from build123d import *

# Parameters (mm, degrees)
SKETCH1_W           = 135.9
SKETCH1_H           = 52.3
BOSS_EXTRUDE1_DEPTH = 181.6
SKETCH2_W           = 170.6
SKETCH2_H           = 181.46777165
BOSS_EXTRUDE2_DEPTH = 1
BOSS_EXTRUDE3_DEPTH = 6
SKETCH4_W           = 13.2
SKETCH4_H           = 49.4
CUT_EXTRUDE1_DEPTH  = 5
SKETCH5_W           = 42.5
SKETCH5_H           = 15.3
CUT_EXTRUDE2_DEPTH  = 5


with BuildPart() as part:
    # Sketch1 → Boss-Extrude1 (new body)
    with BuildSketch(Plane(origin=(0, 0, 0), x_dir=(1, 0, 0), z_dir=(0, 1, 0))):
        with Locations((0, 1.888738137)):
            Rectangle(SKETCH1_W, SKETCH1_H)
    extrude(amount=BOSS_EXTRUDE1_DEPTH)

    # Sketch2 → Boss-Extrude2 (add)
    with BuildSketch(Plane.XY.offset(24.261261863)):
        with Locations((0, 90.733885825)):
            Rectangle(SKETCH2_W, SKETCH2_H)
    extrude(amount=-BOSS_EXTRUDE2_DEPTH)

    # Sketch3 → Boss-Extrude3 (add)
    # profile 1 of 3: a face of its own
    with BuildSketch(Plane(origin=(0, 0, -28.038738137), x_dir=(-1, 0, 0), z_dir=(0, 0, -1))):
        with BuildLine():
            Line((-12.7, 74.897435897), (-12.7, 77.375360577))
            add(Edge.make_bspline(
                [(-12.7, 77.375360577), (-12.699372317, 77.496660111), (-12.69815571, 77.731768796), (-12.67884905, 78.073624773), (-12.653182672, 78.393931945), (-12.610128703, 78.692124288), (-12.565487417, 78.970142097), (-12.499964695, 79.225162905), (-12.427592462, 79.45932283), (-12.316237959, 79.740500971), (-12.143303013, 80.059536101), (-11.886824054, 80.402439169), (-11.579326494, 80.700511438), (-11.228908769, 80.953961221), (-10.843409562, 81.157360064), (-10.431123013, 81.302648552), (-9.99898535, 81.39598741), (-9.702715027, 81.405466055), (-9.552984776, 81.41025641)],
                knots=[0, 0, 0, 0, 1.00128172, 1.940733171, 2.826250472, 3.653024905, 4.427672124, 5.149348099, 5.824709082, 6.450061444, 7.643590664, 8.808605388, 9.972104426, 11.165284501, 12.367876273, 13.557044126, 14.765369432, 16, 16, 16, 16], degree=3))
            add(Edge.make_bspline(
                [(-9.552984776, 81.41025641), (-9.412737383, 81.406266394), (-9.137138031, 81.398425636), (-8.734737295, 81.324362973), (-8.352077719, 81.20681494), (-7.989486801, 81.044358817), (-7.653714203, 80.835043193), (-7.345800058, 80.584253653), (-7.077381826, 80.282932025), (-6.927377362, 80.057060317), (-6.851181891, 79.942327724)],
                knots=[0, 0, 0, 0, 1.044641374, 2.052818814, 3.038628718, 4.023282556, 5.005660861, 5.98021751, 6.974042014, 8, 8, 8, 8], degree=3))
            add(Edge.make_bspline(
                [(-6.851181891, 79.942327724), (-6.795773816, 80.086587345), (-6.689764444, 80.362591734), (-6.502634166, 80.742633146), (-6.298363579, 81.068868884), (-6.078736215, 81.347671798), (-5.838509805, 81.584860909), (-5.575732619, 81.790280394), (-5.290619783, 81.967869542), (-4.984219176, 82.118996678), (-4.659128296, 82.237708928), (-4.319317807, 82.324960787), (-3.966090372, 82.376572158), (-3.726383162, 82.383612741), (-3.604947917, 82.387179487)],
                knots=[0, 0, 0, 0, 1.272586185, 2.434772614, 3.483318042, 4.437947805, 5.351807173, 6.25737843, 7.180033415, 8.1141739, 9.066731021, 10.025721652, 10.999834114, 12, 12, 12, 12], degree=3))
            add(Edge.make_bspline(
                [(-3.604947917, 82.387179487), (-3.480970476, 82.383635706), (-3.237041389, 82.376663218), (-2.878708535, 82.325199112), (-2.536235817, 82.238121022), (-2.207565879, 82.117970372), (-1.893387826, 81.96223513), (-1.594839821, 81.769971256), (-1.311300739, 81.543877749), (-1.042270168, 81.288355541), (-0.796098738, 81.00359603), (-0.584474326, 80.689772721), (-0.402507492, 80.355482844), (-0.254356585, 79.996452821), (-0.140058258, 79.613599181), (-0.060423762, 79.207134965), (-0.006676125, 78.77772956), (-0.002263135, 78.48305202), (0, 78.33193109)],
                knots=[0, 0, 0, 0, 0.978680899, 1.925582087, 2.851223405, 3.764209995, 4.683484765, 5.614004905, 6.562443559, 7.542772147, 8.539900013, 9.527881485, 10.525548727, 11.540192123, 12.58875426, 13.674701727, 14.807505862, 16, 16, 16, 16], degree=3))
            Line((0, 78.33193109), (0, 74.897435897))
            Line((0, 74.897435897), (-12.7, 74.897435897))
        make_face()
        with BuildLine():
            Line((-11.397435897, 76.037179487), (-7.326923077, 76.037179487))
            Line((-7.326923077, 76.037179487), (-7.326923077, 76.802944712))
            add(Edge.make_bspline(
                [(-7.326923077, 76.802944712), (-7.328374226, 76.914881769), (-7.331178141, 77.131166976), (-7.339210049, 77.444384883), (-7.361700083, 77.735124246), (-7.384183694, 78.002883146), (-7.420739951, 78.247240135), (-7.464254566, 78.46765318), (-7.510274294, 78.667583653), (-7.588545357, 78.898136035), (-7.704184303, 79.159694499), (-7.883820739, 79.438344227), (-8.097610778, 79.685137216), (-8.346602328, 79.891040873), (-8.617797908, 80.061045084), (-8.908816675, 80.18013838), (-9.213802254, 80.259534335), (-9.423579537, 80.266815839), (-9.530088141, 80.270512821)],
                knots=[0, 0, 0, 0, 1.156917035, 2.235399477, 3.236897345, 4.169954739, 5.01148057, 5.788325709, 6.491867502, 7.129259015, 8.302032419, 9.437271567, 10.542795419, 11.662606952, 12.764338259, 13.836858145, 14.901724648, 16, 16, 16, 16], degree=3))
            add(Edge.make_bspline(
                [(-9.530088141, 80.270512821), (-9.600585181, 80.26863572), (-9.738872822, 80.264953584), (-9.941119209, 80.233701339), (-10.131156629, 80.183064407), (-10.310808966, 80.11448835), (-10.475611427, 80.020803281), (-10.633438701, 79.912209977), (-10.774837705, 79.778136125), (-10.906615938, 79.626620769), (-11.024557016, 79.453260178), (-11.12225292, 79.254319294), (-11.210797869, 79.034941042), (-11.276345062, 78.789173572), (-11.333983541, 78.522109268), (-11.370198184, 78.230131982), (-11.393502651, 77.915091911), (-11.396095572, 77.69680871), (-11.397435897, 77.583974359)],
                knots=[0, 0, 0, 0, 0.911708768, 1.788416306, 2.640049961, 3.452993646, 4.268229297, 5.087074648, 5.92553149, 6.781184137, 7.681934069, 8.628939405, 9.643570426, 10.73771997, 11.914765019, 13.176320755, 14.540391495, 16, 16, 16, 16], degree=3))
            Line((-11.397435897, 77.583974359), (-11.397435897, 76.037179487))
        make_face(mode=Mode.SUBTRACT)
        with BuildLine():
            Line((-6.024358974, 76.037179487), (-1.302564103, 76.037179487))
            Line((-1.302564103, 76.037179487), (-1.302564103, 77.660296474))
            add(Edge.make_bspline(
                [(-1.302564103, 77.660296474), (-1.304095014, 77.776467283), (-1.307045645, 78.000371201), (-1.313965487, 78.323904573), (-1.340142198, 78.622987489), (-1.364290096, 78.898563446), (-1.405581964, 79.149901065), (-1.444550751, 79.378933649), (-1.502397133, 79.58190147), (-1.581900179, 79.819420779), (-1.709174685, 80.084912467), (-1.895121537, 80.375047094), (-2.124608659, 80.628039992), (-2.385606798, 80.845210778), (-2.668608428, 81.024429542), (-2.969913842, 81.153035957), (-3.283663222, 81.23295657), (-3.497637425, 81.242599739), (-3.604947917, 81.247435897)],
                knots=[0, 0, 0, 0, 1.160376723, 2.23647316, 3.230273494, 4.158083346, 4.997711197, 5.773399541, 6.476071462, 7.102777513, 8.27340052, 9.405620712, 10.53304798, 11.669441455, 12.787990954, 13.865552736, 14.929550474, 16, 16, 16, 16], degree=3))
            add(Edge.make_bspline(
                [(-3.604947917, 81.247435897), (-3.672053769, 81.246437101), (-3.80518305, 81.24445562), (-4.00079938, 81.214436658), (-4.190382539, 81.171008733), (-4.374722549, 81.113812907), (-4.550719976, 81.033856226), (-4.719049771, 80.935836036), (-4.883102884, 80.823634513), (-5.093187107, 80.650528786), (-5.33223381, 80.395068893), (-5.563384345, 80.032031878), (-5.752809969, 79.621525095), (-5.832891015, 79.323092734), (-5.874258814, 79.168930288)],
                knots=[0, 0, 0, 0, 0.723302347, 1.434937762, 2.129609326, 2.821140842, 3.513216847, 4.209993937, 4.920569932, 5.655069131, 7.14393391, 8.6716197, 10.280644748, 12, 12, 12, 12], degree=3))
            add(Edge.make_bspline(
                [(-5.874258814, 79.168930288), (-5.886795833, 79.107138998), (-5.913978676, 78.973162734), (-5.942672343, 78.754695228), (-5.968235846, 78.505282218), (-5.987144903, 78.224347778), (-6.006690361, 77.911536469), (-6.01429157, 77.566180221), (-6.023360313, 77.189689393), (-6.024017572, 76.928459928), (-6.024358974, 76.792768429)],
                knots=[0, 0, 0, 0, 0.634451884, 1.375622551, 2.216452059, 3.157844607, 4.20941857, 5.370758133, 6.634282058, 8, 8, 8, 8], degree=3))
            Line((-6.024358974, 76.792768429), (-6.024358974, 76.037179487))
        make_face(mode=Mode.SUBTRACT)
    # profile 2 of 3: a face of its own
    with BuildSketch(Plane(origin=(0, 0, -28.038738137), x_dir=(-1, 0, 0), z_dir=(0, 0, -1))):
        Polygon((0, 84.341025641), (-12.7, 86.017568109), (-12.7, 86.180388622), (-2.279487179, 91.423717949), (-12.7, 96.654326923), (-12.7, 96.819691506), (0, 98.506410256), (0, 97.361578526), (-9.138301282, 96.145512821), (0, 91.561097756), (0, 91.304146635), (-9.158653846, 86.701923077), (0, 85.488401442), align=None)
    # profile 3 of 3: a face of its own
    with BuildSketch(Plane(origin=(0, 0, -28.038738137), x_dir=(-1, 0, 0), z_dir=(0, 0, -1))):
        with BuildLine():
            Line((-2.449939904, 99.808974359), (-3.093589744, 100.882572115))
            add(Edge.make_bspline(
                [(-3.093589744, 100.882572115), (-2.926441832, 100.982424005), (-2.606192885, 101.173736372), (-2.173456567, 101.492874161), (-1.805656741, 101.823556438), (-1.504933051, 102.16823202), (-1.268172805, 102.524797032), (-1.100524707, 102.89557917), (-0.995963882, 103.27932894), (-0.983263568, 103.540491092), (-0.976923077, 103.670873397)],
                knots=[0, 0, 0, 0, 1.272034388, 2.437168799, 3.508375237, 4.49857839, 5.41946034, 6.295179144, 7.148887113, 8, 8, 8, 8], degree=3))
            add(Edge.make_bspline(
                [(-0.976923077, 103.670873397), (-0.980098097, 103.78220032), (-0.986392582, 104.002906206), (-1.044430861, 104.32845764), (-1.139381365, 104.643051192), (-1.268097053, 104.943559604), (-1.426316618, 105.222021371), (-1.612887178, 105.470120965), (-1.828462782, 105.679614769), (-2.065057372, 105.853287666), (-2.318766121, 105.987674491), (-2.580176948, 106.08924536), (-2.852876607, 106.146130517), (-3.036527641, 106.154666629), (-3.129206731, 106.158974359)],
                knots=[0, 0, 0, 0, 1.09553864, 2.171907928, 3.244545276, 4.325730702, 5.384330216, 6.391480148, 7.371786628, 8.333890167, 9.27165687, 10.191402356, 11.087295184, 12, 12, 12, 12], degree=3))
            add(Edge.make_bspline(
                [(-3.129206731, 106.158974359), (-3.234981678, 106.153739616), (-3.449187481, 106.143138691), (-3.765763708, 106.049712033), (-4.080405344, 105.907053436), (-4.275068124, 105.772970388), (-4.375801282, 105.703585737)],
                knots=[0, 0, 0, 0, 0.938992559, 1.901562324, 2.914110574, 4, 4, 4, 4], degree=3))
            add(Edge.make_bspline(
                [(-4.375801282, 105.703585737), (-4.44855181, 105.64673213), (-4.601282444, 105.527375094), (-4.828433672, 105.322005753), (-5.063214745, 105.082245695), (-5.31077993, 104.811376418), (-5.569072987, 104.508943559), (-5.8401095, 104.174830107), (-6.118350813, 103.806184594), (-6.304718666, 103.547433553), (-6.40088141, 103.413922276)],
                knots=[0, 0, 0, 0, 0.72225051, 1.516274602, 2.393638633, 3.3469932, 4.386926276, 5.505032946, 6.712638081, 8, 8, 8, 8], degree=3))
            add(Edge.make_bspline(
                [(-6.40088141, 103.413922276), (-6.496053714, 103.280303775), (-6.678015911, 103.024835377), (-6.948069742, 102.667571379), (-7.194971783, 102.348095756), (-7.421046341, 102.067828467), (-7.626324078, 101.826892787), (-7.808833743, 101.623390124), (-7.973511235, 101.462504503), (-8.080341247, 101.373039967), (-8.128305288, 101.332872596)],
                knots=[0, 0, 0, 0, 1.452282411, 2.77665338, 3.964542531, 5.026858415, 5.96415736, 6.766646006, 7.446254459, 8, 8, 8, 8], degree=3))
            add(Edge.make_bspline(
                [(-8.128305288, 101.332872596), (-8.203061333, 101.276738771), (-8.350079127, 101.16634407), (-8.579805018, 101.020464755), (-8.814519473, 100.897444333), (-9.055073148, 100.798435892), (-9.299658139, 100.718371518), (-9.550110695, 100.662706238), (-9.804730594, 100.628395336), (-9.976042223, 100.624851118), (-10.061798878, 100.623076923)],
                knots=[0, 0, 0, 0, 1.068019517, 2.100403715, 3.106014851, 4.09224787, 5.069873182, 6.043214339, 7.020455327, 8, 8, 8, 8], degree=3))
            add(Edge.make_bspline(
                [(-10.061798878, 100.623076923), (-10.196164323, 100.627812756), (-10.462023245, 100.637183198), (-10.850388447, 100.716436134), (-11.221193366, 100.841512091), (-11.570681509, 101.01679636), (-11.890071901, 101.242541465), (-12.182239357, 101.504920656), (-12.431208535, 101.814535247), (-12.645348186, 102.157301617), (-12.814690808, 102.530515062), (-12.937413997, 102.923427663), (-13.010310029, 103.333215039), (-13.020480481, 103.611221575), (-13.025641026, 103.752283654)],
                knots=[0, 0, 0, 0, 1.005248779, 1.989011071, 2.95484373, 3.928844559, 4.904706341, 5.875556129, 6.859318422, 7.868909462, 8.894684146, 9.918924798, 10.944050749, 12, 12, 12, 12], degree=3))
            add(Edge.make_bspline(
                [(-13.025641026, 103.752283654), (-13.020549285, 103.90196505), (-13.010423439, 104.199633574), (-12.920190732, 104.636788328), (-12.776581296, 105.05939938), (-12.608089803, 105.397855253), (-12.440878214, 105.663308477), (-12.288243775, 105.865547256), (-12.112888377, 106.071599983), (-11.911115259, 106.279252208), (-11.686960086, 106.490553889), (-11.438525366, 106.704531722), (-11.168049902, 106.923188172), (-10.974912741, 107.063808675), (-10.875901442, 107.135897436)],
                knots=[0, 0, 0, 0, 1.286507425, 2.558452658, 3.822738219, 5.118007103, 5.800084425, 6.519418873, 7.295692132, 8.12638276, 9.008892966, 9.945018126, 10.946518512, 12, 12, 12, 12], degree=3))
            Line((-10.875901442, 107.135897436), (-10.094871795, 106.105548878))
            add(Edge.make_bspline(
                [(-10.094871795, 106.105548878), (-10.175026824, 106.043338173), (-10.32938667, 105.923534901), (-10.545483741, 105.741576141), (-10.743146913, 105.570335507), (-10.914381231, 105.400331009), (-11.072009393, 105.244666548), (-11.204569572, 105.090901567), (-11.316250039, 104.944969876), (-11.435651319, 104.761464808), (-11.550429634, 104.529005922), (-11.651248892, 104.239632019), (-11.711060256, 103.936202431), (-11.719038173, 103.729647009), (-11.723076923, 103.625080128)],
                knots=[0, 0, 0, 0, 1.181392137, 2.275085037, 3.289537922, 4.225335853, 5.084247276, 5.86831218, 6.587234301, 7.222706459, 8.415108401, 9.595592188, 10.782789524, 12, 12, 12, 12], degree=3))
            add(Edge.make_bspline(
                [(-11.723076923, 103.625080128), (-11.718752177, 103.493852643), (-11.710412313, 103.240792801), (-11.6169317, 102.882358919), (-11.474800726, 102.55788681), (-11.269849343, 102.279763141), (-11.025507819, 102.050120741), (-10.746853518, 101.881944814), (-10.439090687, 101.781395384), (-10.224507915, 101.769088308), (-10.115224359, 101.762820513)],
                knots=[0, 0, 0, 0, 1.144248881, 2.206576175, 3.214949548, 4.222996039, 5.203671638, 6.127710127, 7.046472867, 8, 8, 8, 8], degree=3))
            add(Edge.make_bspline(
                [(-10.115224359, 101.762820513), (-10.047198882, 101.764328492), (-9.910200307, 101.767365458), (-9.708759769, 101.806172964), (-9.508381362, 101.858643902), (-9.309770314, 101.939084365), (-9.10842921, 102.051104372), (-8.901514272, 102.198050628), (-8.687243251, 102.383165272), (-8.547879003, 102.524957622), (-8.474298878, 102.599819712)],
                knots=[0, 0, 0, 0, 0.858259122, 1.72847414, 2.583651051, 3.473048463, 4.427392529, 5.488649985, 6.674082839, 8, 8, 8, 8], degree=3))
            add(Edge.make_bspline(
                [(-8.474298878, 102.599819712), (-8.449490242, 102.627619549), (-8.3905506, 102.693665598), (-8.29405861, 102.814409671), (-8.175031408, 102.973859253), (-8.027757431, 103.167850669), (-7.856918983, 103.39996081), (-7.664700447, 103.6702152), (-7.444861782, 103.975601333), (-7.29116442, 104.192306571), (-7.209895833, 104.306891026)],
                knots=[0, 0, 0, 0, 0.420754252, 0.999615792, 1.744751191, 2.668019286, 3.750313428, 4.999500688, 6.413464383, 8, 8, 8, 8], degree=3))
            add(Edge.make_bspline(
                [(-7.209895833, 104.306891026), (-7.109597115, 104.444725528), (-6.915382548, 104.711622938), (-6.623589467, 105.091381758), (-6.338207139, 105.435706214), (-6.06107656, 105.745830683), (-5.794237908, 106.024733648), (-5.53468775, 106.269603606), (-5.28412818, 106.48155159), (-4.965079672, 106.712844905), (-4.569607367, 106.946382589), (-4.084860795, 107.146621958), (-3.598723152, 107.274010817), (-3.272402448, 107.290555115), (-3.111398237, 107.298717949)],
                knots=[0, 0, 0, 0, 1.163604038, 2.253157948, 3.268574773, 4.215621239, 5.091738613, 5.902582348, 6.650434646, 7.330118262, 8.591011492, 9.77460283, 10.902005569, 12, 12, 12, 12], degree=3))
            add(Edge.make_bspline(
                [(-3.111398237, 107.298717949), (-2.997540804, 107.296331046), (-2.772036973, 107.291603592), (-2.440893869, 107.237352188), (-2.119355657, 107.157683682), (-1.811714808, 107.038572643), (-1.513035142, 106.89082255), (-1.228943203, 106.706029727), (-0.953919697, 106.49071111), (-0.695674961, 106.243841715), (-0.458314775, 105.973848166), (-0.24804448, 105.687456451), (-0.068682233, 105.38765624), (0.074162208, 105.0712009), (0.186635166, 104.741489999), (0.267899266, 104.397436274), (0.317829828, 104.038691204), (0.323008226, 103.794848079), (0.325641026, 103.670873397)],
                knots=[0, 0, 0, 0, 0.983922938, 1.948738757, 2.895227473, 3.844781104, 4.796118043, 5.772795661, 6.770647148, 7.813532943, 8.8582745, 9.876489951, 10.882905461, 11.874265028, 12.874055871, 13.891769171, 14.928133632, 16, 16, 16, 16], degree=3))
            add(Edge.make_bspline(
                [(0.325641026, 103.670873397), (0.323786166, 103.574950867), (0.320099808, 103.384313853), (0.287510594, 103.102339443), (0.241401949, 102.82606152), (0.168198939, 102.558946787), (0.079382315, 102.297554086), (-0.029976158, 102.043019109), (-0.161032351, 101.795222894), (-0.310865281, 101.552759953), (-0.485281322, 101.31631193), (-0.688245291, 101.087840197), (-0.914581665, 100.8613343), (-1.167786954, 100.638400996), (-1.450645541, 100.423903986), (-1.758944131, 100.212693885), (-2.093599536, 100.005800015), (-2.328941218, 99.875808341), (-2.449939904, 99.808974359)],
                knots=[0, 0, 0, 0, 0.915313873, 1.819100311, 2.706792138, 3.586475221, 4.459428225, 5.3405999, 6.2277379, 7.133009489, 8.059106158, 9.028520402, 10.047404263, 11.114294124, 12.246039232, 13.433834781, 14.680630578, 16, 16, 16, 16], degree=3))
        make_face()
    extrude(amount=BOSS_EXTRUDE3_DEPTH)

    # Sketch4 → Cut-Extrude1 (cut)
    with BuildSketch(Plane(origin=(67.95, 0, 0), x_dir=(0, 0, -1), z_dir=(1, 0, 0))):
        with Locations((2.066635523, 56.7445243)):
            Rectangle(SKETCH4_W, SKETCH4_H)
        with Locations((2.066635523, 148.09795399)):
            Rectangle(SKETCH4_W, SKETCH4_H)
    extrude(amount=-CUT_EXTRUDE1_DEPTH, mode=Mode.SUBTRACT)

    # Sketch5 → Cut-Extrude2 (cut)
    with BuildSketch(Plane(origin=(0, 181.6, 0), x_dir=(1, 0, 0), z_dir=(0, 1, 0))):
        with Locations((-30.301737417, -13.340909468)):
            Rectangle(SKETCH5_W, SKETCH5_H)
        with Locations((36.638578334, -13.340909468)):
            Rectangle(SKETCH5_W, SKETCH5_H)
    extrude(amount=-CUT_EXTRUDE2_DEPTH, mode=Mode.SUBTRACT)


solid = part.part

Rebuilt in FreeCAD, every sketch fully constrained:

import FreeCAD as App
import Part
import Sketcher
from FreeCAD import Vector
Q = App.Units.Quantity

doc = App.newDocument("Part")
body = doc.addObject("PartDesign::Body", "Body")

# Sketch on XZ plane
sketch1 = body.newObject("Sketcher::SketchObject", "Sketch")
sketch1.AttachmentSupport = (doc.getObject("XZ_Plane"), [""])
sketch1.MapMode = "FlatFace"
sketch1.addGeometry(Part.LineSegment(Vector(-68, -28, 0), Vector(-68, 24, 0)), False)
sketch1.addGeometry(Part.LineSegment(Vector(-68, 24, 0), Vector(68, 24, 0)), False)
sketch1.addGeometry(Part.LineSegment(Vector(68, 24, 0), Vector(68, -28, 0)), False)
sketch1.addGeometry(Part.LineSegment(Vector(68, -28, 0), Vector(-68, -28, 0)), False)
sketch1.addConstraint(Sketcher.Constraint("Coincident", 0, 2, 1, 1))
sketch1.addConstraint(Sketcher.Constraint("Coincident", 1, 2, 2, 1))
sketch1.addConstraint(Sketcher.Constraint("Coincident", 2, 2, 3, 1))
sketch1.addConstraint(Sketcher.Constraint("Coincident", 3, 2, 0, 1))
sketch1.addConstraint(Sketcher.Constraint("Vertical", 0))
sketch1.addConstraint(Sketcher.Constraint("Horizontal", 1))
sketch1.addConstraint(Sketcher.Constraint("Vertical", 2))
sketch1.addConstraint(Sketcher.Constraint("Horizontal", 3))
sketch1.addConstraint(Sketcher.Constraint("DistanceX", 1, 1, 1, 2, Q("135.9 mm")))
sketch1.addConstraint(Sketcher.Constraint("DistanceY", 0, 1, 0, 2, Q("52.3 mm")))
sketch1.addConstraint(Sketcher.Constraint("DistanceX", 0, 2, -1, 1, Q("67.95 mm")))
sketch1.addConstraint(Sketcher.Constraint("DistanceY", -1, 1, 0, 2, Q("24.261262 mm")))
pad1 = body.newObject("PartDesign::Pad", "Pad")
pad1.Profile = sketch1
pad1.Length = 181.6
pad1.Reversed = True

# Sketch on XY plane
sketch2 = body.newObject("Sketcher::SketchObject", "Sketch001")
sketch2.AttachmentSupport = (doc.getObject("XY_Plane"), [""])
sketch2.MapMode = "FlatFace"
sketch2.AttachmentOffset = App.Placement(Vector(0, 0, 24.261262), App.Rotation())
sketch2.addGeometry(Part.LineSegment(Vector(-85, 181, 0), Vector(-85, 0, 0)), False)
sketch2.addGeometry(Part.LineSegment(Vector(-85, 0, 0), Vector(85, 0, 0)), False)
sketch2.addGeometry(Part.LineSegment(Vector(85, 0, 0), Vector(85, 181, 0)), False)
sketch2.addGeometry(Part.LineSegment(Vector(85, 181, 0), Vector(-85, 181, 0)), False)
sketch2.addConstraint(Sketcher.Constraint("Coincident", 0, 2, 1, 1))
sketch2.addConstraint(Sketcher.Constraint("Coincident", 1, 2, 2, 1))
sketch2.addConstraint(Sketcher.Constraint("Coincident", 2, 2, 3, 1))
sketch2.addConstraint(Sketcher.Constraint("Coincident", 3, 2, 0, 1))
sketch2.addConstraint(Sketcher.Constraint("Vertical", 0))
sketch2.addConstraint(Sketcher.Constraint("Horizontal", 1))
sketch2.addConstraint(Sketcher.Constraint("Vertical", 2))
sketch2.addConstraint(Sketcher.Constraint("Horizontal", 3))
sketch2.addConstraint(Sketcher.Constraint("Symmetric", 0, 2, 1, 2, -1, 1))
sketch2.addConstraint(Sketcher.Constraint("DistanceX", 1, 1, 1, 2, Q("170.6 mm")))
sketch2.addConstraint(Sketcher.Constraint("DistanceY", 0, 2, 0, 1, Q("181.467772 mm")))
pad2 = body.newObject("PartDesign::Pad", "Pad001")
pad2.Profile = sketch2
pad2.Length = 1
pad2.Reversed = True

# Sketch on XY plane
sketch3 = body.newObject("Sketcher::SketchObject", "Sketch002")
sketch3.AttachmentSupport = (doc.getObject("XY_Plane"), [""])
sketch3.MapMode = "FlatFace"
sketch3.AttachmentOffset = App.Placement(Vector(0, 0, -28.038738), App.Rotation())
sketch3.addGeometry(Part.LineSegment(Vector(12.7, 77.375361, 0), Vector(12.7, 74.897436, 0)), False)
sketch3.addGeometry(Part.LineSegment(Vector(12.7, 74.897436, 0), Vector(0, 74.897436, 0)), False)
sketch3.addGeometry(Part.LineSegment(Vector(0, 74.897436, 0), Vector(0, 78.331931, 0)), False)
sketch3.addGeometry(Part.BSplineCurve([Vector(3.604948, 82.387179, 0), Vector(3.48097, 82.383636, 0), Vector(3.237041, 82.376663, 0), Vector(2.878709, 82.325199, 0), Vector(2.536236, 82.238121, 0), Vector(2.207566, 82.11797, 0), Vector(1.893388, 81.962235, 0), Vector(1.59484, 81.769971, 0), Vector(1.311301, 81.543878, 0), Vector(1.04227, 81.288356, 0), Vector(0.796099, 81.003596, 0), Vector(0.584474, 80.689773, 0), Vector(0.402507, 80.355483, 0), Vector(0.254357, 79.996453, 0), Vector(0.140058, 79.613599, 0), Vector(0.060424, 79.207135, 0), Vector(0.006676, 78.77773, 0), Vector(0.002263, 78.483052, 0), Vector(0, 78.331931, 0)], [4, 1, 1, 1, 1, 1, 1, 1, 1, 1, 1, 1, 1, 1, 1, 1, 4], [0, 0.978680899, 1.925582087, 2.851223405, 3.764209995, 4.683484765, 5.614004905, 6.562443559, 7.542772147, 8.539900013, 9.527881485, 10.525548727, 11.540192123, 12.58875426, 13.674701727, 14.807505862, 16], False, 3, [1, 1, 1, 1, 1, 1, 1, 1, 1, 1, 1, 1, 1, 1, 1, 1, 1, 1, 1], False), False)
sketch3.addGeometry(Part.BSplineCurve([Vector(6.851182, 79.942328, 0), Vector(6.795774, 80.086587, 0), Vector(6.689764, 80.362592, 0), Vector(6.502634, 80.742633, 0), Vector(6.298364, 81.068869, 0), Vector(6.078736, 81.347672, 0), Vector(5.83851, 81.584861, 0), Vector(5.575733, 81.79028, 0), Vector(5.29062, 81.96787, 0), Vector(4.984219, 82.118997, 0), Vector(4.659128, 82.237709, 0), Vector(4.319318, 82.324961, 0), Vector(3.96609, 82.376572, 0), Vector(3.726383, 82.383613, 0), Vector(3.604948, 82.387179, 0)], [4, 1, 1, 1, 1, 1, 1, 1, 1, 1, 1, 1, 4], [0, 1.272586185, 2.434772614, 3.483318042, 4.437947805, 5.351807173, 6.25737843, 7.180033415, 8.1141739, 9.066731021, 10.025721652, 10.999834114, 12], False, 3, [1, 1, 1, 1, 1, 1, 1, 1, 1, 1, 1, 1, 1, 1, 1], False), False)
sketch3.addGeometry(Part.BSplineCurve([Vector(9.552985, 81.410256, 0), Vector(9.412737, 81.406266, 0), Vector(9.137138, 81.398426, 0), Vector(8.734737, 81.324363, 0), Vector(8.352078, 81.206815, 0), Vector(7.989487, 81.044359, 0), Vector(7.653714, 80.835043, 0), Vector(7.3458, 80.584254, 0), Vector(7.077382, 80.282932, 0), Vector(6.927377, 80.05706, 0), Vector(6.851182, 79.942328, 0)], [4, 1, 1, 1, 1, 1, 1, 1, 4], [0, 1.044641374, 2.052818814, 3.038628718, 4.023282556, 5.005660861, 5.98021751, 6.974042014, 8], False, 3, [1, 1, 1, 1, 1, 1, 1, 1, 1, 1, 1], False), False)
sketch3.addGeometry(Part.BSplineCurve([Vector(12.7, 77.375361, 0), Vector(12.699372, 77.49666, 0), Vector(12.698156, 77.731769, 0), Vector(12.678849, 78.073625, 0), Vector(12.653183, 78.393932, 0), Vector(12.610129, 78.692124, 0), Vector(12.565487, 78.970142, 0), Vector(12.499965, 79.225163, 0), Vector(12.427592, 79.459323, 0), Vector(12.316238, 79.740501, 0), Vector(12.143303, 80.059536, 0), Vector(11.886824, 80.402439, 0), Vector(11.579326, 80.700511, 0), Vector(11.228909, 80.953961, 0), Vector(10.84341, 81.15736, 0), Vector(10.431123, 81.302649, 0), Vector(9.998985, 81.395987, 0), Vector(9.702715, 81.405466, 0), Vector(9.552985, 81.410256, 0)], [4, 1, 1, 1, 1, 1, 1, 1, 1, 1, 1, 1, 1, 1, 1, 1, 4], [0, 1.00128172, 1.940733171, 2.826250472, 3.653024905, 4.427672124, 5.149348099, 5.824709082, 6.450061444, 7.643590664, 8.808605388, 9.972104426, 11.165284501, 12.367876273, 13.557044126, 14.765369432, 16], False, 3, [1, 1, 1, 1, 1, 1, 1, 1, 1, 1, 1, 1, 1, 1, 1, 1, 1, 1, 1], False), False)
sketch3.addGeometry(Part.LineSegment(Vector(11.397436, 76.037179, 0), Vector(11.397436, 77.583974, 0)), False)
sketch3.addGeometry(Part.BSplineCurve([Vector(9.530088, 80.270513, 0), Vector(9.600585, 80.268636, 0), Vector(9.738873, 80.264954, 0), Vector(9.941119, 80.233701, 0), Vector(10.131157, 80.183064, 0), Vector(10.310809, 80.114488, 0), Vector(10.475611, 80.020803, 0), Vector(10.633439, 79.91221, 0), Vector(10.774838, 79.778136, 0), Vector(10.906616, 79.626621, 0), Vector(11.024557, 79.45326, 0), Vector(11.122253, 79.254319, 0), Vector(11.210798, 79.034941, 0), Vector(11.276345, 78.789174, 0), Vector(11.333984, 78.522109, 0), Vector(11.370198, 78.230132, 0), Vector(11.393503, 77.915092, 0), Vector(11.396096, 77.696809, 0), Vector(11.397436, 77.583974, 0)], [4, 1, 1, 1, 1, 1, 1, 1, 1, 1, 1, 1, 1, 1, 1, 1, 4], [0, 0.911708768, 1.788416306, 2.640049961, 3.452993646, 4.268229297, 5.087074648, 5.92553149, 6.781184137, 7.681934069, 8.628939405, 9.643570426, 10.73771997, 11.914765019, 13.176320755, 14.540391495, 16], False, 3, [1, 1, 1, 1, 1, 1, 1, 1, 1, 1, 1, 1, 1, 1, 1, 1, 1, 1, 1], False), False)
sketch3.addGeometry(Part.BSplineCurve([Vector(7.326923, 76.802945, 0), Vector(7.328374, 76.914882, 0), Vector(7.331178, 77.131167, 0), Vector(7.33921, 77.444385, 0), Vector(7.3617, 77.735124, 0), Vector(7.384184, 78.002883, 0), Vector(7.42074, 78.24724, 0), Vector(7.464255, 78.467653, 0), Vector(7.510274, 78.667584, 0), Vector(7.588545, 78.898136, 0), Vector(7.704184, 79.159694, 0), Vector(7.883821, 79.438344, 0), Vector(8.097611, 79.685137, 0), Vector(8.346602, 79.891041, 0), Vector(8.617798, 80.061045, 0), Vector(8.908817, 80.180138, 0), Vector(9.213802, 80.259534, 0), Vector(9.42358, 80.266816, 0), Vector(9.530088, 80.270513, 0)], [4, 1, 1, 1, 1, 1, 1, 1, 1, 1, 1, 1, 1, 1, 1, 1, 4], [0, 1.156917035, 2.235399477, 3.236897345, 4.169954739, 5.01148057, 5.788325709, 6.491867502, 7.129259015, 8.302032419, 9.437271567, 10.542795419, 11.662606952, 12.764338259, 13.836858145, 14.901724648, 16], False, 3, [1, 1, 1, 1, 1, 1, 1, 1, 1, 1, 1, 1, 1, 1, 1, 1, 1, 1, 1], False), False)
sketch3.addGeometry(Part.LineSegment(Vector(7.326923, 76.802945, 0), Vector(7.326923, 76.037179, 0)), False)
sketch3.addGeometry(Part.LineSegment(Vector(7.326923, 76.037179, 0), Vector(11.397436, 76.037179, 0)), False)
sketch3.addGeometry(Part.LineSegment(Vector(6.024359, 76.037179, 0), Vector(6.024359, 76.792768, 0)), False)
sketch3.addGeometry(Part.BSplineCurve([Vector(5.874259, 79.16893, 0), Vector(5.886796, 79.107139, 0), Vector(5.913979, 78.973163, 0), Vector(5.942672, 78.754695, 0), Vector(5.968236, 78.505282, 0), Vector(5.987145, 78.224348, 0), Vector(6.00669, 77.911536, 0), Vector(6.014292, 77.56618, 0), Vector(6.02336, 77.189689, 0), Vector(6.024018, 76.92846, 0), Vector(6.024359, 76.792768, 0)], [4, 1, 1, 1, 1, 1, 1, 1, 4], [0, 0.634451884, 1.375622551, 2.216452059, 3.157844607, 4.20941857, 5.370758133, 6.634282058, 8], False, 3, [1, 1, 1, 1, 1, 1, 1, 1, 1, 1, 1], False), False)
sketch3.addGeometry(Part.BSplineCurve([Vector(3.604948, 81.247436, 0), Vector(3.672054, 81.246437, 0), Vector(3.805183, 81.244456, 0), Vector(4.000799, 81.214437, 0), Vector(4.190383, 81.171009, 0), Vector(4.374723, 81.113813, 0), Vector(4.55072, 81.033856, 0), Vector(4.71905, 80.935836, 0), Vector(4.883103, 80.823635, 0), Vector(5.093187, 80.650529, 0), Vector(5.332234, 80.395069, 0), Vector(5.563384, 80.032032, 0), Vector(5.75281, 79.621525, 0), Vector(5.832891, 79.323093, 0), Vector(5.874259, 79.16893, 0)], [4, 1, 1, 1, 1, 1, 1, 1, 1, 1, 1, 1, 4], [0, 0.723302347, 1.434937762, 2.129609326, 2.821140842, 3.513216847, 4.209993937, 4.920569932, 5.655069131, 7.14393391, 8.6716197, 10.280644748, 12], False, 3, [1, 1, 1, 1, 1, 1, 1, 1, 1, 1, 1, 1, 1, 1, 1], False), False)
sketch3.addGeometry(Part.BSplineCurve([Vector(1.302564, 77.660296, 0), Vector(1.304095, 77.776467, 0), Vector(1.307046, 78.000371, 0), Vector(1.313965, 78.323905, 0), Vector(1.340142, 78.622987, 0), Vector(1.36429, 78.898563, 0), Vector(1.405582, 79.149901, 0), Vector(1.444551, 79.378934, 0), Vector(1.502397, 79.581901, 0), Vector(1.5819, 79.819421, 0), Vector(1.709175, 80.084912, 0), Vector(1.895122, 80.375047, 0), Vector(2.124609, 80.62804, 0), Vector(2.385607, 80.845211, 0), Vector(2.668608, 81.02443, 0), Vector(2.969914, 81.153036, 0), Vector(3.283663, 81.232957, 0), Vector(3.497637, 81.2426, 0), Vector(3.604948, 81.247436, 0)], [4, 1, 1, 1, 1, 1, 1, 1, 1, 1, 1, 1, 1, 1, 1, 1, 4], [0, 1.160376723, 2.23647316, 3.230273494, 4.158083346, 4.997711197, 5.773399541, 6.476071462, 7.102777513, 8.27340052, 9.405620712, 10.53304798, 11.669441455, 12.787990954, 13.865552736, 14.929550474, 16], False, 3, [1, 1, 1, 1, 1, 1, 1, 1, 1, 1, 1, 1, 1, 1, 1, 1, 1, 1, 1], False), False)
sketch3.addGeometry(Part.LineSegment(Vector(1.302564, 77.660296, 0), Vector(1.302564, 76.037179, 0)), False)
sketch3.addGeometry(Part.LineSegment(Vector(1.302564, 76.037179, 0), Vector(6.024359, 76.037179, 0)), False)
sketch3.addGeometry(Part.LineSegment(Vector(12.7, 86.017568, 0), Vector(0, 84.341026, 0)), False)
sketch3.addGeometry(Part.LineSegment(Vector(0, 84.341026, 0), Vector(0, 85.488401, 0)), False)
sketch3.addGeometry(Part.LineSegment(Vector(0, 85.488401, 0), Vector(9.158654, 86.701923, 0)), False)
sketch3.addGeometry(Part.LineSegment(Vector(9.158654, 86.701923, 0), Vector(0, 91.304147, 0)), False)
sketch3.addGeometry(Part.LineSegment(Vector(0, 91.304147, 0), Vector(0, 91.561098, 0)), False)
sketch3.addGeometry(Part.LineSegment(Vector(0, 91.561098, 0), Vector(9.138301, 96.145513, 0)), False)
sketch3.addGeometry(Part.LineSegment(Vector(9.138301, 96.145513, 0), Vector(0, 97.361579, 0)), False)
sketch3.addGeometry(Part.LineSegment(Vector(0, 97.361579, 0), Vector(0, 98.50641, 0)), False)
sketch3.addGeometry(Part.LineSegment(Vector(0, 98.50641, 0), Vector(12.7, 96.819692, 0)), False)
sketch3.addGeometry(Part.LineSegment(Vector(12.7, 96.819692, 0), Vector(12.7, 96.654327, 0)), False)
sketch3.addGeometry(Part.LineSegment(Vector(12.7, 96.654327, 0), Vector(2.279487, 91.423718, 0)), False)
sketch3.addGeometry(Part.LineSegment(Vector(2.279487, 91.423718, 0), Vector(12.7, 86.180389, 0)), False)
sketch3.addGeometry(Part.LineSegment(Vector(12.7, 86.180389, 0), Vector(12.7, 86.017568, 0)), False)
sketch3.addGeometry(Part.LineSegment(Vector(3.09359, 100.882572, 0), Vector(2.44994, 99.808974, 0)), False)
sketch3.addGeometry(Part.BSplineCurve([Vector(-0.325641, 103.670873, 0), Vector(-0.323786, 103.574951, 0), Vector(-0.3201, 103.384314, 0), Vector(-0.287511, 103.102339, 0), Vector(-0.241402, 102.826062, 0), Vector(-0.168199, 102.558947, 0), Vector(-0.079382, 102.297554, 0), Vector(0.029976, 102.043019, 0), Vector(0.161032, 101.795223, 0), Vector(0.310865, 101.55276, 0), Vector(0.485281, 101.316312, 0), Vector(0.688245, 101.08784, 0), Vector(0.914582, 100.861334, 0), Vector(1.167787, 100.638401, 0), Vector(1.450646, 100.423904, 0), Vector(1.758944, 100.212694, 0), Vector(2.0936, 100.0058, 0), Vector(2.328941, 99.875808, 0), Vector(2.44994, 99.808974, 0)], [4, 1, 1, 1, 1, 1, 1, 1, 1, 1, 1, 1, 1, 1, 1, 1, 4], [0, 0.915313873, 1.819100311, 2.706792138, 3.586475221, 4.459428225, 5.3405999, 6.2277379, 7.133009489, 8.059106158, 9.028520402, 10.047404263, 11.114294124, 12.246039232, 13.433834781, 14.680630578, 16], False, 3, [1, 1, 1, 1, 1, 1, 1, 1, 1, 1, 1, 1, 1, 1, 1, 1, 1, 1, 1], False), False)
sketch3.addGeometry(Part.BSplineCurve([Vector(3.111398, 107.298718, 0), Vector(2.997541, 107.296331, 0), Vector(2.772037, 107.291604, 0), Vector(2.440894, 107.237352, 0), Vector(2.119356, 107.157684, 0), Vector(1.811715, 107.038573, 0), Vector(1.513035, 106.890823, 0), Vector(1.228943, 106.70603, 0), Vector(0.95392, 106.490711, 0), Vector(0.695675, 106.243842, 0), Vector(0.458315, 105.973848, 0), Vector(0.248044, 105.687456, 0), Vector(0.068682, 105.387656, 0), Vector(-0.074162, 105.071201, 0), Vector(-0.186635, 104.74149, 0), Vector(-0.267899, 104.397436, 0), Vector(-0.31783, 104.038691, 0), Vector(-0.323008, 103.794848, 0), Vector(-0.325641, 103.670873, 0)], [4, 1, 1, 1, 1, 1, 1, 1, 1, 1, 1, 1, 1, 1, 1, 1, 4], [0, 0.983922938, 1.948738757, 2.895227473, 3.844781104, 4.796118043, 5.772795661, 6.770647148, 7.813532943, 8.8582745, 9.876489951, 10.882905461, 11.874265028, 12.874055871, 13.891769171, 14.928133632, 16], False, 3, [1, 1, 1, 1, 1, 1, 1, 1, 1, 1, 1, 1, 1, 1, 1, 1, 1, 1, 1], False), False)
sketch3.addGeometry(Part.BSplineCurve([Vector(7.209896, 104.306891, 0), Vector(7.109597, 104.444726, 0), Vector(6.915383, 104.711623, 0), Vector(6.623589, 105.091382, 0), Vector(6.338207, 105.435706, 0), Vector(6.061077, 105.745831, 0), Vector(5.794238, 106.024734, 0), Vector(5.534688, 106.269604, 0), Vector(5.284128, 106.481552, 0), Vector(4.96508, 106.712845, 0), Vector(4.569607, 106.946383, 0), Vector(4.084861, 107.146622, 0), Vector(3.598723, 107.274011, 0), Vector(3.272402, 107.290555, 0), Vector(3.111398, 107.298718, 0)], [4, 1, 1, 1, 1, 1, 1, 1, 1, 1, 1, 1, 4], [0, 1.163604038, 2.253157948, 3.268574773, 4.215621239, 5.091738613, 5.902582348, 6.650434646, 7.330118262, 8.591011492, 9.77460283, 10.902005569, 12], False, 3, [1, 1, 1, 1, 1, 1, 1, 1, 1, 1, 1, 1, 1, 1, 1], False), False)
sketch3.addGeometry(Part.BSplineCurve([Vector(8.474299, 102.59982, 0), Vector(8.44949, 102.62762, 0), Vector(8.390551, 102.693666, 0), Vector(8.294059, 102.81441, 0), Vector(8.175031, 102.973859, 0), Vector(8.027757, 103.167851, 0), Vector(7.856919, 103.399961, 0), Vector(7.6647, 103.670215, 0), Vector(7.444862, 103.975601, 0), Vector(7.291164, 104.192307, 0), Vector(7.209896, 104.306891, 0)], [4, 1, 1, 1, 1, 1, 1, 1, 4], [0, 0.420754252, 0.999615792, 1.744751191, 2.668019286, 3.750313428, 4.999500688, 6.413464383, 8], False, 3, [1, 1, 1, 1, 1, 1, 1, 1, 1, 1, 1], False), False)
sketch3.addGeometry(Part.BSplineCurve([Vector(10.115224, 101.762821, 0), Vector(10.047199, 101.764328, 0), Vector(9.9102, 101.767365, 0), Vector(9.70876, 101.806173, 0), Vector(9.508381, 101.858644, 0), Vector(9.30977, 101.939084, 0), Vector(9.108429, 102.051104, 0), Vector(8.901514, 102.198051, 0), Vector(8.687243, 102.383165, 0), Vector(8.547879, 102.524958, 0), Vector(8.474299, 102.59982, 0)], [4, 1, 1, 1, 1, 1, 1, 1, 4], [0, 0.858259122, 1.72847414, 2.583651051, 3.473048463, 4.427392529, 5.488649985, 6.674082839, 8], False, 3, [1, 1, 1, 1, 1, 1, 1, 1, 1, 1, 1], False), False)
sketch3.addGeometry(Part.BSplineCurve([Vector(11.723077, 103.62508, 0), Vector(11.718752, 103.493853, 0), Vector(11.710412, 103.240793, 0), Vector(11.616932, 102.882359, 0), Vector(11.474801, 102.557887, 0), Vector(11.269849, 102.279763, 0), Vector(11.025508, 102.050121, 0), Vector(10.746854, 101.881945, 0), Vector(10.439091, 101.781395, 0), Vector(10.224508, 101.769088, 0), Vector(10.115224, 101.762821, 0)], [4, 1, 1, 1, 1, 1, 1, 1, 4], [0, 1.144248881, 2.206576175, 3.214949548, 4.222996039, 5.203671638, 6.127710127, 7.046472867, 8], False, 3, [1, 1, 1, 1, 1, 1, 1, 1, 1, 1, 1], False), False)
sketch3.addGeometry(Part.BSplineCurve([Vector(10.094872, 106.105549, 0), Vector(10.175027, 106.043338, 0), Vector(10.329387, 105.923535, 0), Vector(10.545484, 105.741576, 0), Vector(10.743147, 105.570336, 0), Vector(10.914381, 105.400331, 0), Vector(11.072009, 105.244667, 0), Vector(11.20457, 105.090902, 0), Vector(11.31625, 104.94497, 0), Vector(11.435651, 104.761465, 0), Vector(11.55043, 104.529006, 0), Vector(11.651249, 104.239632, 0), Vector(11.71106, 103.936202, 0), Vector(11.719038, 103.729647, 0), Vector(11.723077, 103.62508, 0)], [4, 1, 1, 1, 1, 1, 1, 1, 1, 1, 1, 1, 4], [0, 1.181392137, 2.275085037, 3.289537922, 4.225335853, 5.084247276, 5.86831218, 6.587234301, 7.222706459, 8.415108401, 9.595592188, 10.782789524, 12], False, 3, [1, 1, 1, 1, 1, 1, 1, 1, 1, 1, 1, 1, 1, 1, 1], False), False)
sketch3.addGeometry(Part.LineSegment(Vector(10.094872, 106.105549, 0), Vector(10.875901, 107.135897, 0)), False)
sketch3.addGeometry(Part.BSplineCurve([Vector(13.025641, 103.752284, 0), Vector(13.020549, 103.901965, 0), Vector(13.010423, 104.199634, 0), Vector(12.920191, 104.636788, 0), Vector(12.776581, 105.059399, 0), Vector(12.60809, 105.397855, 0), Vector(12.440878, 105.663308, 0), Vector(12.288244, 105.865547, 0), Vector(12.112888, 106.0716, 0), Vector(11.911115, 106.279252, 0), Vector(11.68696, 106.490554, 0), Vector(11.438525, 106.704532, 0), Vector(11.16805, 106.923188, 0), Vector(10.974913, 107.063809, 0), Vector(10.875901, 107.135897, 0)], [4, 1, 1, 1, 1, 1, 1, 1, 1, 1, 1, 1, 4], [0, 1.286507425, 2.558452658, 3.822738219, 5.118007103, 5.800084425, 6.519418873, 7.295692132, 8.12638276, 9.008892966, 9.945018126, 10.946518512, 12], False, 3, [1, 1, 1, 1, 1, 1, 1, 1, 1, 1, 1, 1, 1, 1, 1], False), False)
sketch3.addGeometry(Part.BSplineCurve([Vector(10.061799, 100.623077, 0), Vector(10.196164, 100.627813, 0), Vector(10.462023, 100.637183, 0), Vector(10.850388, 100.716436, 0), Vector(11.221193, 100.841512, 0), Vector(11.570682, 101.016796, 0), Vector(11.890072, 101.242541, 0), Vector(12.182239, 101.504921, 0), Vector(12.431209, 101.814535, 0), Vector(12.645348, 102.157302, 0), Vector(12.814691, 102.530515, 0), Vector(12.937414, 102.923428, 0), Vector(13.01031, 103.333215, 0), Vector(13.02048, 103.611222, 0), Vector(13.025641, 103.752284, 0)], [4, 1, 1, 1, 1, 1, 1, 1, 1, 1, 1, 1, 4], [0, 1.005248779, 1.989011071, 2.95484373, 3.928844559, 4.904706341, 5.875556129, 6.859318422, 7.868909462, 8.894684146, 9.918924798, 10.944050749, 12], False, 3, [1, 1, 1, 1, 1, 1, 1, 1, 1, 1, 1, 1, 1, 1, 1], False), False)
sketch3.addGeometry(Part.BSplineCurve([Vector(8.128305, 101.332873, 0), Vector(8.203061, 101.276739, 0), Vector(8.350079, 101.166344, 0), Vector(8.579805, 101.020465, 0), Vector(8.814519, 100.897444, 0), Vector(9.055073, 100.798436, 0), Vector(9.299658, 100.718372, 0), Vector(9.550111, 100.662706, 0), Vector(9.804731, 100.628395, 0), Vector(9.976042, 100.624851, 0), Vector(10.061799, 100.623077, 0)], [4, 1, 1, 1, 1, 1, 1, 1, 4], [0, 1.068019517, 2.100403715, 3.106014851, 4.09224787, 5.069873182, 6.043214339, 7.020455327, 8], False, 3, [1, 1, 1, 1, 1, 1, 1, 1, 1, 1, 1], False), False)
sketch3.addGeometry(Part.BSplineCurve([Vector(6.400881, 103.413922, 0), Vector(6.496054, 103.280304, 0), Vector(6.678016, 103.024835, 0), Vector(6.94807, 102.667571, 0), Vector(7.194972, 102.348096, 0), Vector(7.421046, 102.067828, 0), Vector(7.626324, 101.826893, 0), Vector(7.808834, 101.62339, 0), Vector(7.973511, 101.462505, 0), Vector(8.080341, 101.37304, 0), Vector(8.128305, 101.332873, 0)], [4, 1, 1, 1, 1, 1, 1, 1, 4], [0, 1.452282411, 2.77665338, 3.964542531, 5.026858415, 5.96415736, 6.766646006, 7.446254459, 8], False, 3, [1, 1, 1, 1, 1, 1, 1, 1, 1, 1, 1], False), False)
sketch3.addGeometry(Part.BSplineCurve([Vector(4.375801, 105.703586, 0), Vector(4.448552, 105.646732, 0), Vector(4.601282, 105.527375, 0), Vector(4.828434, 105.322006, 0), Vector(5.063215, 105.082246, 0), Vector(5.31078, 104.811376, 0), Vector(5.569073, 104.508944, 0), Vector(5.840109, 104.17483, 0), Vector(6.118351, 103.806185, 0), Vector(6.304719, 103.547434, 0), Vector(6.400881, 103.413922, 0)], [4, 1, 1, 1, 1, 1, 1, 1, 4], [0, 0.72225051, 1.516274602, 2.393638633, 3.3469932, 4.386926276, 5.505032946, 6.712638081, 8], False, 3, [1, 1, 1, 1, 1, 1, 1, 1, 1, 1, 1], False), False)
sketch3.addGeometry(Part.BSplineCurve([Vector(3.129207, 106.158974, 0), Vector(3.234982, 106.15374, 0), Vector(3.449187, 106.143139, 0), Vector(3.765764, 106.049712, 0), Vector(4.080405, 105.907053, 0), Vector(4.275068, 105.77297, 0), Vector(4.375801, 105.703586, 0)], [4, 1, 1, 1, 4], [0, 0.938992559, 1.901562324, 2.914110574, 4], False, 3, [1, 1, 1, 1, 1, 1, 1], False), False)
sketch3.addGeometry(Part.BSplineCurve([Vector(0.976923, 103.670873, 0), Vector(0.980098, 103.7822, 0), Vector(0.986393, 104.002906, 0), Vector(1.044431, 104.328458, 0), Vector(1.139381, 104.643051, 0), Vector(1.268097, 104.94356, 0), Vector(1.426317, 105.222021, 0), Vector(1.612887, 105.470121, 0), Vector(1.828463, 105.679615, 0), Vector(2.065057, 105.853288, 0), Vector(2.318766, 105.987674, 0), Vector(2.580177, 106.089245, 0), Vector(2.852877, 106.146131, 0), Vector(3.036528, 106.154667, 0), Vector(3.129207, 106.158974, 0)], [4, 1, 1, 1, 1, 1, 1, 1, 1, 1, 1, 1, 4], [0, 1.09553864, 2.171907928, 3.244545276, 4.325730702, 5.384330216, 6.391480148, 7.371786628, 8.333890167, 9.27165687, 10.191402356, 11.087295184, 12], False, 3, [1, 1, 1, 1, 1, 1, 1, 1, 1, 1, 1, 1, 1, 1, 1], False), False)
sketch3.addGeometry(Part.BSplineCurve([Vector(3.09359, 100.882572, 0), Vector(2.926442, 100.982424, 0), Vector(2.606193, 101.173736, 0), Vector(2.173457, 101.492874, 0), Vector(1.805657, 101.823556, 0), Vector(1.504933, 102.168232, 0), Vector(1.268173, 102.524797, 0), Vector(1.100525, 102.895579, 0), Vector(0.995964, 103.279329, 0), Vector(0.983264, 103.540491, 0), Vector(0.976923, 103.670873, 0)], [4, 1, 1, 1, 1, 1, 1, 1, 4], [0, 1.272034388, 2.437168799, 3.508375237, 4.49857839, 5.41946034, 6.295179144, 7.148887113, 8], False, 3, [1, 1, 1, 1, 1, 1, 1, 1, 1, 1, 1], False), False)
sketch3.addConstraint(Sketcher.Constraint("Block", 3))
sketch3.addConstraint(Sketcher.Constraint("Block", 4))
sketch3.addConstraint(Sketcher.Constraint("Block", 5))
sketch3.addConstraint(Sketcher.Constraint("Block", 6))
sketch3.addConstraint(Sketcher.Constraint("Block", 8))
sketch3.addConstraint(Sketcher.Constraint("Block", 9))
sketch3.addConstraint(Sketcher.Constraint("Block", 13))
sketch3.addConstraint(Sketcher.Constraint("Block", 14))
sketch3.addConstraint(Sketcher.Constraint("Block", 15))
sketch3.addConstraint(Sketcher.Constraint("Block", 32))
sketch3.addConstraint(Sketcher.Constraint("Block", 33))
sketch3.addConstraint(Sketcher.Constraint("Block", 34))
sketch3.addConstraint(Sketcher.Constraint("Block", 35))
sketch3.addConstraint(Sketcher.Constraint("Block", 36))
sketch3.addConstraint(Sketcher.Constraint("Block", 37))
sketch3.addConstraint(Sketcher.Constraint("Block", 38))
sketch3.addConstraint(Sketcher.Constraint("Block", 40))
sketch3.addConstraint(Sketcher.Constraint("Block", 41))
sketch3.addConstraint(Sketcher.Constraint("Block", 42))
sketch3.addConstraint(Sketcher.Constraint("Block", 43))
sketch3.addConstraint(Sketcher.Constraint("Block", 44))
sketch3.addConstraint(Sketcher.Constraint("Block", 45))
sketch3.addConstraint(Sketcher.Constraint("Block", 46))
sketch3.addConstraint(Sketcher.Constraint("Block", 47))
sketch3.addConstraint(Sketcher.Constraint("Coincident", 0, 2, 1, 1))
sketch3.addConstraint(Sketcher.Constraint("Coincident", 1, 2, 2, 1))
sketch3.addConstraint(Sketcher.Constraint("Coincident", 2, 2, 3, 2))
sketch3.addConstraint(Sketcher.Constraint("Coincident", 6, 1, 0, 1))
sketch3.addConstraint(Sketcher.Constraint("Coincident", 7, 2, 8, 2))
sketch3.addConstraint(Sketcher.Constraint("Coincident", 9, 1, 10, 1))
sketch3.addConstraint(Sketcher.Constraint("Coincident", 10, 2, 11, 1))
sketch3.addConstraint(Sketcher.Constraint("Coincident", 11, 2, 7, 1))
sketch3.addConstraint(Sketcher.Constraint("Coincident", 12, 2, 13, 2))
sketch3.addConstraint(Sketcher.Constraint("Coincident", 15, 1, 16, 1))
sketch3.addConstraint(Sketcher.Constraint("Coincident", 16, 2, 17, 1))
sketch3.addConstraint(Sketcher.Constraint("Coincident", 17, 2, 12, 1))
sketch3.addConstraint(Sketcher.Constraint("Coincident", 18, 2, 19, 1))
sketch3.addConstraint(Sketcher.Constraint("Coincident", 19, 2, 20, 1))
sketch3.addConstraint(Sketcher.Constraint("Coincident", 20, 2, 21, 1))
sketch3.addConstraint(Sketcher.Constraint("Coincident", 21, 2, 22, 1))
sketch3.addConstraint(Sketcher.Constraint("Coincident", 22, 2, 23, 1))
sketch3.addConstraint(Sketcher.Constraint("Coincident", 23, 2, 24, 1))
sketch3.addConstraint(Sketcher.Constraint("Coincident", 24, 2, 25, 1))
sketch3.addConstraint(Sketcher.Constraint("Coincident", 25, 2, 26, 1))
sketch3.addConstraint(Sketcher.Constraint("Coincident", 26, 2, 27, 1))
sketch3.addConstraint(Sketcher.Constraint("Coincident", 27, 2, 28, 1))
sketch3.addConstraint(Sketcher.Constraint("Coincident", 28, 2, 29, 1))
sketch3.addConstraint(Sketcher.Constraint("Coincident", 29, 2, 30, 1))
sketch3.addConstraint(Sketcher.Constraint("Coincident", 30, 2, 18, 1))
sketch3.addConstraint(Sketcher.Constraint("Coincident", 31, 2, 32, 2))
sketch3.addConstraint(Sketcher.Constraint("Coincident", 38, 1, 39, 1))
sketch3.addConstraint(Sketcher.Constraint("Coincident", 39, 2, 40, 2))
sketch3.addConstraint(Sketcher.Constraint("Coincident", 47, 1, 31, 1))
sketch3.addConstraint(Sketcher.Constraint("Vertical", 0))
sketch3.addConstraint(Sketcher.Constraint("Horizontal", 1))
sketch3.addConstraint(Sketcher.Constraint("Vertical", 2))
sketch3.addConstraint(Sketcher.Constraint("Vertical", 7))
sketch3.addConstraint(Sketcher.Constraint("Vertical", 10))
sketch3.addConstraint(Sketcher.Constraint("Horizontal", 11))
sketch3.addConstraint(Sketcher.Constraint("Vertical", 12))
sketch3.addConstraint(Sketcher.Constraint("Vertical", 16))
sketch3.addConstraint(Sketcher.Constraint("Horizontal", 17))
sketch3.addConstraint(Sketcher.Constraint("Vertical", 19))
sketch3.addConstraint(Sketcher.Constraint("Vertical", 22))
sketch3.addConstraint(Sketcher.Constraint("Vertical", 25))
sketch3.addConstraint(Sketcher.Constraint("Vertical", 27))
sketch3.addConstraint(Sketcher.Constraint("Vertical", 30))
sketch3.addConstraint(Sketcher.Constraint("PointOnObject", 18, 2, -2))
sketch3.addConstraint(Sketcher.Constraint("PointOnObject", 21, 2, -2))
sketch3.addConstraint(Sketcher.Constraint("PointOnObject", 24, 2, -2))
sketch3.addConstraint(Sketcher.Constraint("Horizontal", 11, 2, 16, 2))
sketch3.addConstraint(Sketcher.Constraint("Vertical", 0, 2, 26, 2))
sketch3.addConstraint(Sketcher.Constraint("Vertical", 27, 2, 29, 2))
sketch3.addConstraint(Sketcher.Constraint("Angle", 24, Q("172.419985 deg")))
sketch3.addConstraint(Sketcher.Constraint("Distance", 20, Q("9.2387 mm")))
sketch3.addConstraint(Sketcher.Constraint("DistanceY", 12, 1, 12, 2, Q("0.755589 mm")))
sketch3.addConstraint(Sketcher.Constraint("DistanceY", 22, 1, 22, 2, Q("0.256951 mm")))
sketch3.addConstraint(Sketcher.Constraint("DistanceY", 25, 1, 25, 2, Q("1.144832 mm")))
sketch3.addConstraint(Sketcher.Constraint("DistanceY", 30, 2, 30, 1, Q("0.162821 mm")))
sketch3.addConstraint(Sketcher.Constraint("DistanceY", -1, 1, 19, 2, Q("85.488401 mm")))
sketch3.addConstraint(Sketcher.Constraint("DistanceX", -1, 1, 23, 2, Q("9.138301 mm")))
sketch3.addConstraint(Sketcher.Constraint("Distance", 26, Q("12.811519 mm")))
sketch3.addConstraint(Sketcher.Constraint("DistanceY", 0, 2, 0, 1, Q("2.477925 mm")))
sketch3.addConstraint(Sketcher.Constraint("DistanceY", 19, 1, 19, 2, Q("1.147376 mm")))
sketch3.addConstraint(Sketcher.Constraint("DistanceY", 27, 2, 27, 1, Q("0.165365 mm")))
sketch3.addConstraint(Sketcher.Constraint("DistanceY", -1, 1, 24, 2, Q("97.361579 mm")))
sketch3.addConstraint(Sketcher.Constraint("DistanceY", -1, 1, 29, 2, Q("86.180389 mm")))
sketch3.addConstraint(Sketcher.Constraint("DistanceY", 19, 2, 20, 2, Q("1.213522 mm")))
sketch3.addConstraint(Sketcher.Constraint("DistanceY", 18, 2, 21, 2, Q("6.963121 mm")))
sketch3.addConstraint(Sketcher.Constraint("DistanceY", 21, 2, 28, 2, Q("0.119571 mm")))
sketch3.addConstraint(Sketcher.Constraint("Distance", 28, Q("11.659604 mm")))
pad3 = body.newObject("PartDesign::Pad", "Pad002")
pad3.Profile = sketch3
pad3.Length = 6
pad3.Reversed = True

# Sketch on YZ plane
sketch4 = body.newObject("Sketcher::SketchObject", "Sketch003")
sketch4.AttachmentSupport = (doc.getObject("YZ_Plane"), [""])
sketch4.MapMode = "FlatFace"
sketch4.AttachmentOffset = App.Placement(Vector(0, 0, 67.95), App.Rotation())
sketch4.addGeometry(Part.LineSegment(Vector(81, 5, 0), Vector(32, 5, 0)), False)
sketch4.addGeometry(Part.LineSegment(Vector(32, 5, 0), Vector(32, -9, 0)), False)
sketch4.addGeometry(Part.LineSegment(Vector(32, -9, 0), Vector(81, -9, 0)), False)
sketch4.addGeometry(Part.LineSegment(Vector(81, -9, 0), Vector(81, 5, 0)), False)
sketch4.addGeometry(Part.LineSegment(Vector(173, 5, 0), Vector(123, 5, 0)), False)
sketch4.addGeometry(Part.LineSegment(Vector(123, 5, 0), Vector(123, -9, 0)), False)
sketch4.addGeometry(Part.LineSegment(Vector(123, -9, 0), Vector(173, -9, 0)), False)
sketch4.addGeometry(Part.LineSegment(Vector(173, -9, 0), Vector(173, 5, 0)), False)
sketch4.addConstraint(Sketcher.Constraint("Coincident", 0, 2, 1, 1))
sketch4.addConstraint(Sketcher.Constraint("Coincident", 1, 2, 2, 1))
sketch4.addConstraint(Sketcher.Constraint("Coincident", 2, 2, 3, 1))
sketch4.addConstraint(Sketcher.Constraint("Coincident", 3, 2, 0, 1))
sketch4.addConstraint(Sketcher.Constraint("Coincident", 4, 2, 5, 1))
sketch4.addConstraint(Sketcher.Constraint("Coincident", 5, 2, 6, 1))
sketch4.addConstraint(Sketcher.Constraint("Coincident", 6, 2, 7, 1))
sketch4.addConstraint(Sketcher.Constraint("Coincident", 7, 2, 4, 1))
sketch4.addConstraint(Sketcher.Constraint("Horizontal", 0))
sketch4.addConstraint(Sketcher.Constraint("Vertical", 1))
sketch4.addConstraint(Sketcher.Constraint("Horizontal", 2))
sketch4.addConstraint(Sketcher.Constraint("Vertical", 3))
sketch4.addConstraint(Sketcher.Constraint("Horizontal", 4))
sketch4.addConstraint(Sketcher.Constraint("Vertical", 5))
sketch4.addConstraint(Sketcher.Constraint("Horizontal", 6))
sketch4.addConstraint(Sketcher.Constraint("Vertical", 7))
sketch4.addConstraint(Sketcher.Constraint("Horizontal", 3, 2, 4, 2))
sketch4.addConstraint(Sketcher.Constraint("Horizontal", 2, 2, 5, 2))
sketch4.addConstraint(Sketcher.Constraint("Equal", 2, 4))
sketch4.addConstraint(Sketcher.Constraint("DistanceX", 0, 2, 0, 1, Q("49.4 mm")))
sketch4.addConstraint(Sketcher.Constraint("DistanceY", 1, 2, 1, 1, Q("13.2 mm")))
sketch4.addConstraint(Sketcher.Constraint("DistanceX", 3, 2, 4, 2, Q("41.95343 mm")))
sketch4.addConstraint(Sketcher.Constraint("DistanceX", -1, 1, 0, 2, Q("32.044524 mm")))
sketch4.addConstraint(Sketcher.Constraint("DistanceY", -1, 1, 0, 2, Q("4.533364 mm")))
pocket1 = body.newObject("PartDesign::Pocket", "Pocket")
pocket1.Profile = sketch4
pocket1.Length = 5

# Sketch on XZ plane
sketch5 = body.newObject("Sketcher::SketchObject", "Sketch004")
sketch5.AttachmentSupport = (doc.getObject("XZ_Plane"), [""])
sketch5.MapMode = "FlatFace"
sketch5.AttachmentOffset = App.Placement(Vector(0, 0, -181.6), App.Rotation())
sketch5.addGeometry(Part.LineSegment(Vector(-52, 6, 0), Vector(-52, 21, 0)), False)
sketch5.addGeometry(Part.LineSegment(Vector(-52, 21, 0), Vector(-9, 21, 0)), False)
sketch5.addGeometry(Part.LineSegment(Vector(-9, 21, 0), Vector(-9, 6, 0)), False)
sketch5.addGeometry(Part.LineSegment(Vector(-9, 6, 0), Vector(-52, 6, 0)), False)
sketch5.addGeometry(Part.LineSegment(Vector(15, 6, 0), Vector(15, 21, 0)), False)
sketch5.addGeometry(Part.LineSegment(Vector(15, 21, 0), Vector(58, 21, 0)), False)
sketch5.addGeometry(Part.LineSegment(Vector(58, 21, 0), Vector(58, 6, 0)), False)
sketch5.addGeometry(Part.LineSegment(Vector(58, 6, 0), Vector(15, 6, 0)), False)
sketch5.addConstraint(Sketcher.Constraint("Coincident", 0, 2, 1, 1))
sketch5.addConstraint(Sketcher.Constraint("Coincident", 1, 2, 2, 1))
sketch5.addConstraint(Sketcher.Constraint("Coincident", 2, 2, 3, 1))
sketch5.addConstraint(Sketcher.Constraint("Coincident", 3, 2, 0, 1))
sketch5.addConstraint(Sketcher.Constraint("Coincident", 4, 2, 5, 1))
sketch5.addConstraint(Sketcher.Constraint("Coincident", 5, 2, 6, 1))
sketch5.addConstraint(Sketcher.Constraint("Coincident", 6, 2, 7, 1))
sketch5.addConstraint(Sketcher.Constraint("Coincident", 7, 2, 4, 1))
sketch5.addConstraint(Sketcher.Constraint("Vertical", 0))
sketch5.addConstraint(Sketcher.Constraint("Horizontal", 1))
sketch5.addConstraint(Sketcher.Constraint("Vertical", 2))
sketch5.addConstraint(Sketcher.Constraint("Horizontal", 3))
sketch5.addConstraint(Sketcher.Constraint("Vertical", 4))
sketch5.addConstraint(Sketcher.Constraint("Horizontal", 5))
sketch5.addConstraint(Sketcher.Constraint("Vertical", 6))
sketch5.addConstraint(Sketcher.Constraint("Horizontal", 7))
sketch5.addConstraint(Sketcher.Constraint("Horizontal", 1, 2, 4, 2))
sketch5.addConstraint(Sketcher.Constraint("Horizontal", 3, 2, 6, 2))
sketch5.addConstraint(Sketcher.Constraint("Equal", 3, 5))
sketch5.addConstraint(Sketcher.Constraint("DistanceX", 1, 1, 1, 2, Q("42.5 mm")))
sketch5.addConstraint(Sketcher.Constraint("DistanceY", 0, 1, 0, 2, Q("15.3 mm")))
sketch5.addConstraint(Sketcher.Constraint("DistanceY", -1, 1, 0, 2, Q("20.990909 mm")))
sketch5.addConstraint(Sketcher.Constraint("DistanceX", -1, 1, 4, 2, Q("15.388578 mm")))
sketch5.addConstraint(Sketcher.Constraint("DistanceX", 0, 2, -1, 1, Q("51.551737 mm")))
pocket2 = body.newObject("PartDesign::Pocket", "Pocket001")
pocket2.Profile = sketch5
pocket2.Length = 5
pocket2.Reversed = True

doc.recompute()
